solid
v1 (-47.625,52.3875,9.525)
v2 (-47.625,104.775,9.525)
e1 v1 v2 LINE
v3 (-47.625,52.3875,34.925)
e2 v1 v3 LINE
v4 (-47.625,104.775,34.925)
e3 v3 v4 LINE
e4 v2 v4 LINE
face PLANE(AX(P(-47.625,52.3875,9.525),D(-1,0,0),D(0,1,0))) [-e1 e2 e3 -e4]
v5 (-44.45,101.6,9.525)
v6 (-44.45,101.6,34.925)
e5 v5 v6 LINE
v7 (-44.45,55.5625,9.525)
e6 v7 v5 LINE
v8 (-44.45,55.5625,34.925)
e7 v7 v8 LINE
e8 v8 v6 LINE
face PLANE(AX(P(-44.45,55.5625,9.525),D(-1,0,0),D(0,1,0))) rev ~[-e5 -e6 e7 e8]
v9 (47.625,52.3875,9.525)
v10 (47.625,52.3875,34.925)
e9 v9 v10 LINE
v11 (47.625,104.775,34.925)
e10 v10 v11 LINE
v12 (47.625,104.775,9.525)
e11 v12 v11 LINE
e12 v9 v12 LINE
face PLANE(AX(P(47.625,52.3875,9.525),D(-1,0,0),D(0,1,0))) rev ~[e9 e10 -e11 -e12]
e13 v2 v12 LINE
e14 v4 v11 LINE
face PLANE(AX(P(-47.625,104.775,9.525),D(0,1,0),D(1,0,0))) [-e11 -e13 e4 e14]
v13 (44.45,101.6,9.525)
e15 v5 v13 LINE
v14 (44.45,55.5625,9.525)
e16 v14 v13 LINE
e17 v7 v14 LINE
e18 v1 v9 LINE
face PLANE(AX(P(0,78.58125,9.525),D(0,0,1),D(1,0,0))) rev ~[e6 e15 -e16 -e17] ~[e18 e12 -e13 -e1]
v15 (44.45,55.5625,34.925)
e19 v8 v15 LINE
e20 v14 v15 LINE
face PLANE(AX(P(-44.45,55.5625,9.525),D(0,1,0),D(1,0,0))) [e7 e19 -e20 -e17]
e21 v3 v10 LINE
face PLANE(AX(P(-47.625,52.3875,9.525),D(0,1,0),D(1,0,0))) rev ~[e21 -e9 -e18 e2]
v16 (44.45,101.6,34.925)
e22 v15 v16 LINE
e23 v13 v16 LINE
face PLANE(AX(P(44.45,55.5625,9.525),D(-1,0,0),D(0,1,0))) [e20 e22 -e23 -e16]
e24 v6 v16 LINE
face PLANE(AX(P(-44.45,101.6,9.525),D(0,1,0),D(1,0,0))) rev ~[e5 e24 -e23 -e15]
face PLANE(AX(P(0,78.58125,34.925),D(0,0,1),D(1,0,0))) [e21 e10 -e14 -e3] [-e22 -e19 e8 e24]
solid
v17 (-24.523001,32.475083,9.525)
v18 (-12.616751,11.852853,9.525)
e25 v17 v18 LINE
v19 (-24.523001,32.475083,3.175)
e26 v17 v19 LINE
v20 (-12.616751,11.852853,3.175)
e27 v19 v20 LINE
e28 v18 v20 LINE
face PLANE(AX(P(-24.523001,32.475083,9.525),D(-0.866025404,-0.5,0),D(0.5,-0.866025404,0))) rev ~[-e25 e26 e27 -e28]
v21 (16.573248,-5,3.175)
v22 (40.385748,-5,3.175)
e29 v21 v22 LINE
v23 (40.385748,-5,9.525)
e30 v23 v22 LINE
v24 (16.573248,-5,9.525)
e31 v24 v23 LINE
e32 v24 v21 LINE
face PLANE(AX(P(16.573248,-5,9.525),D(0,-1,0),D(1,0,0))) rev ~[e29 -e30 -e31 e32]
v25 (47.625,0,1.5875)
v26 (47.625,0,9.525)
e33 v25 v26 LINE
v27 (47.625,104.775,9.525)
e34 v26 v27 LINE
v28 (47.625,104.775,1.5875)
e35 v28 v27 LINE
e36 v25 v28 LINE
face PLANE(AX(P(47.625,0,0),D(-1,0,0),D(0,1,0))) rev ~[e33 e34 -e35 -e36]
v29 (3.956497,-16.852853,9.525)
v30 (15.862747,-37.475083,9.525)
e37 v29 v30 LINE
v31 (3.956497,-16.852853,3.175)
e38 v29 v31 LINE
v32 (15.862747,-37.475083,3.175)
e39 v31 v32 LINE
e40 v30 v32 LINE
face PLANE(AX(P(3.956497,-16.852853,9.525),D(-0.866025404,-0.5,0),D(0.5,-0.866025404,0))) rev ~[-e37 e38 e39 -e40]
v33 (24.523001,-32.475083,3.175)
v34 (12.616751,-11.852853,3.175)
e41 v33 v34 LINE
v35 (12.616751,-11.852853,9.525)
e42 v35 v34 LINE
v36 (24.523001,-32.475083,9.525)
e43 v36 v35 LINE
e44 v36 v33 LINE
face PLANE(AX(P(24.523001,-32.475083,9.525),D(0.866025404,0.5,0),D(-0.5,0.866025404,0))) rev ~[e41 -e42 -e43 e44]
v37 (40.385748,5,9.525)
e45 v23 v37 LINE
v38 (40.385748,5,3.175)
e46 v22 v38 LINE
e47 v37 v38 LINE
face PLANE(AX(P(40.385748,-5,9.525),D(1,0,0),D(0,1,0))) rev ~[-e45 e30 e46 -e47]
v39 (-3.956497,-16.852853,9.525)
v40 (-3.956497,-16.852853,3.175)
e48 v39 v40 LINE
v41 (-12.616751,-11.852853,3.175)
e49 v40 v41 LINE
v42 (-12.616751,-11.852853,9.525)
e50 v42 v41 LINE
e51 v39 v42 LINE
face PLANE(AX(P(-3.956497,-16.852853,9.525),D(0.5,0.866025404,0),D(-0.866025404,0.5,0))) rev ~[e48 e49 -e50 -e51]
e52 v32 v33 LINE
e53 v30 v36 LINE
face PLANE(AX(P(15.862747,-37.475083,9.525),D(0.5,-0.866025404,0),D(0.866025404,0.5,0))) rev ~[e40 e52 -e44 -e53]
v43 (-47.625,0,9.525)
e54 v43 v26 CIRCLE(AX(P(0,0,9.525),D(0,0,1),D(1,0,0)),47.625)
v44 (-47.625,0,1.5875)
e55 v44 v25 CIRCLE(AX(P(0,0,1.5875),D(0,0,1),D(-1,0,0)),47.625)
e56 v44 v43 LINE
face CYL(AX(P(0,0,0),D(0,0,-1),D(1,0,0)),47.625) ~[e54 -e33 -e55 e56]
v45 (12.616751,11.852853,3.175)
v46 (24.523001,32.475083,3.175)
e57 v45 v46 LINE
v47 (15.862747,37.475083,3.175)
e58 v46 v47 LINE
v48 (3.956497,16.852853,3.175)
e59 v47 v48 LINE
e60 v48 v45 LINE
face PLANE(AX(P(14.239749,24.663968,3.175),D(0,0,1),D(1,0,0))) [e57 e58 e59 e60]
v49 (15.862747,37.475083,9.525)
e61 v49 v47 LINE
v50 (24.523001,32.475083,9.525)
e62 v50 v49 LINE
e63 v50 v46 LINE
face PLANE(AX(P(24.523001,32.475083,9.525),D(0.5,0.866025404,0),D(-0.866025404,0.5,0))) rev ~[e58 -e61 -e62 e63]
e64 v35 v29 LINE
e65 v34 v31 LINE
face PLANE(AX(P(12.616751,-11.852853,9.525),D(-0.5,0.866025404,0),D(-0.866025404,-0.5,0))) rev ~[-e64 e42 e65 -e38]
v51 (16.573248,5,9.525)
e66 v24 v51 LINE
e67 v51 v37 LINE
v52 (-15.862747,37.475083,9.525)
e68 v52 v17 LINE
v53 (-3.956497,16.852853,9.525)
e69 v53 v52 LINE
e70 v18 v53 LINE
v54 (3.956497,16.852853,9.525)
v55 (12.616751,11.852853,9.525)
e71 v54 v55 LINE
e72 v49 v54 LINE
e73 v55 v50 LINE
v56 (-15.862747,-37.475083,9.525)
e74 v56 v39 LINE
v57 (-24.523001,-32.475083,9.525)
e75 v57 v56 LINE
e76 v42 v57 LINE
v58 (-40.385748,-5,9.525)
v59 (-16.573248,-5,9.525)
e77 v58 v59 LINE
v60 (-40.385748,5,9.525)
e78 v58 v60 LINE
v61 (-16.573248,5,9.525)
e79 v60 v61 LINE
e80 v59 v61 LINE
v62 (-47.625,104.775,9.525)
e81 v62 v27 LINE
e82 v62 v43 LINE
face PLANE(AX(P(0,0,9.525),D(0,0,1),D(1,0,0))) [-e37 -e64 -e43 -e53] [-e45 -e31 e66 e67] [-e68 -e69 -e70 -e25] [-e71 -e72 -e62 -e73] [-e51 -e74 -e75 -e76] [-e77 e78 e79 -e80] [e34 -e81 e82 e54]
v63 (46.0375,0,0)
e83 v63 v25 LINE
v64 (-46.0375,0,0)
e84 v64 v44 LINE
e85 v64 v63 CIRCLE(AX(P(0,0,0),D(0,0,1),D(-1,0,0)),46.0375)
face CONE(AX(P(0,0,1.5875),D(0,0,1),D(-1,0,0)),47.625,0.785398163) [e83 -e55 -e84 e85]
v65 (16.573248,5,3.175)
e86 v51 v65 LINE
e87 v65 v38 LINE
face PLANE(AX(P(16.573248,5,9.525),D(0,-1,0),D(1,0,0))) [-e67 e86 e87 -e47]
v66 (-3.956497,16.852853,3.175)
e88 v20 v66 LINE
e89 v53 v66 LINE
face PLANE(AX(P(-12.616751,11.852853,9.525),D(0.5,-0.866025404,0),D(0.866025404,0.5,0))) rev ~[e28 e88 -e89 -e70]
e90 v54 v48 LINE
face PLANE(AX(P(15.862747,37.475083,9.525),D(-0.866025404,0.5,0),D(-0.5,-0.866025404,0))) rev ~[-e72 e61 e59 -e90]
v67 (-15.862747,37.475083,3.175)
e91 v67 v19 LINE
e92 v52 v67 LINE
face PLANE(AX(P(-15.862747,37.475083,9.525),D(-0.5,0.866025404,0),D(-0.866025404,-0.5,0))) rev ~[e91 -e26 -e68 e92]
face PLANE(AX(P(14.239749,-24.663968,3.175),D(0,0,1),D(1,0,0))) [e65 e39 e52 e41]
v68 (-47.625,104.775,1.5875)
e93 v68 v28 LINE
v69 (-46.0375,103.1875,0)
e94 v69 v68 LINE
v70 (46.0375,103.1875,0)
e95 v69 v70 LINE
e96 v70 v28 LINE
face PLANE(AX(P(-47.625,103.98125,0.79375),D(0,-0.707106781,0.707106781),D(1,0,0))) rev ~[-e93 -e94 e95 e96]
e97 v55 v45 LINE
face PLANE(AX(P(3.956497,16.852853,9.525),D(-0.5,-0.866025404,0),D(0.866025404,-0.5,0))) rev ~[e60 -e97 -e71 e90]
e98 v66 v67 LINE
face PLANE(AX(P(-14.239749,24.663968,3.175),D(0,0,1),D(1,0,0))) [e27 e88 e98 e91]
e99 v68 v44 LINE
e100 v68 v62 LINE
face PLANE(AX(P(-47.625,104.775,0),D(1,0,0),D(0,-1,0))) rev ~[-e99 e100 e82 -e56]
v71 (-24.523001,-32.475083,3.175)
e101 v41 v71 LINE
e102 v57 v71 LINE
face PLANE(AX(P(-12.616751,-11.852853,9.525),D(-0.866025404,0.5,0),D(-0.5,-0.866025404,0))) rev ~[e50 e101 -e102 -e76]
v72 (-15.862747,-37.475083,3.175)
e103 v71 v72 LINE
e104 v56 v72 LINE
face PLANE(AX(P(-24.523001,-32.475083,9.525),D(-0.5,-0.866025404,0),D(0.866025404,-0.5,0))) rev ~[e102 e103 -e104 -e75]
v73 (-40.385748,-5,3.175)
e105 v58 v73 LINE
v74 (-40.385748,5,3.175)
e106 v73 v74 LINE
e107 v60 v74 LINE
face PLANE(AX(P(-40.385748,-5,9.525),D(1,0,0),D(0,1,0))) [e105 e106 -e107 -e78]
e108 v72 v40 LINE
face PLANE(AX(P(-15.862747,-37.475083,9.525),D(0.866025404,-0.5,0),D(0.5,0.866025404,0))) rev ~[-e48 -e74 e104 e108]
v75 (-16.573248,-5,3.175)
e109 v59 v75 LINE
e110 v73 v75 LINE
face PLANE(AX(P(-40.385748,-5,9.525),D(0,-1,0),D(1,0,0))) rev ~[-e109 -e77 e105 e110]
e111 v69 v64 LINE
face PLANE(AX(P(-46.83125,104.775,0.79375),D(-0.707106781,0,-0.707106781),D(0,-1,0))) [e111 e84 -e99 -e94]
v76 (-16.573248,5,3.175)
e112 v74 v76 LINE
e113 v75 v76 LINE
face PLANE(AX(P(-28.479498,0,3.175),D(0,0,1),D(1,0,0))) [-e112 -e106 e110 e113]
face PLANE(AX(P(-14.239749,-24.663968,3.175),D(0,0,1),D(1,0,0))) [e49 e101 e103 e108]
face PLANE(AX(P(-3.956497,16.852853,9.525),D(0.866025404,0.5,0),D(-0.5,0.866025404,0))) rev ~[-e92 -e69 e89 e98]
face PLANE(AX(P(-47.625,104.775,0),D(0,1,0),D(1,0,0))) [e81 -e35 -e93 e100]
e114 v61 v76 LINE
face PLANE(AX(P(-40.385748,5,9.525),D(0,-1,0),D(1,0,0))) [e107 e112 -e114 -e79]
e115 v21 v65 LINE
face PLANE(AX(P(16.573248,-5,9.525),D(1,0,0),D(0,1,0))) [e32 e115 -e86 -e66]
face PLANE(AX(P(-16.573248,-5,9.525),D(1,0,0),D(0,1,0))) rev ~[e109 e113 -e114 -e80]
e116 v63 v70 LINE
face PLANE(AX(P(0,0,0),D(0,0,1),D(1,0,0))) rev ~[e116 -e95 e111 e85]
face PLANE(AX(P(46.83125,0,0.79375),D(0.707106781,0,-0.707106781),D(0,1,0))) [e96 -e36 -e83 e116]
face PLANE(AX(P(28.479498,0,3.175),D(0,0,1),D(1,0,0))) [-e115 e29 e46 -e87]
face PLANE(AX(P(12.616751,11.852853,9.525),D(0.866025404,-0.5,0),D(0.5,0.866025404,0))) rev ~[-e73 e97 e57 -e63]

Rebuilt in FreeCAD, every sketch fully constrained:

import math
import FreeCAD as App
import Part
import Sketcher
from FreeCAD import Vector
Q = App.Units.Quantity


def edges_at(feature, points):
    """Names of the edges that pass closest to the given points."""
    edges = feature.Shape.Edges
    near = lambda p: min(range(len(edges)), key=lambda i: edges[i].distToShape(Part.Vertex(*p))[0])
    return sorted({f"Edge{near(p) + 1}" for p in points})


def add_polygon(sketch, points):
    """Adds a closed chain of lines whose ends are joined by coincident constraints."""
    first, n = sketch.GeometryCount, len(points)
    for a, b in zip(points, points[1:] + points[:1]):
        sketch.addGeometry(Part.LineSegment(App.Vector(*a, 0), App.Vector(*b, 0)), False)
    for i in range(n):
        sketch.addConstraint(Sketcher.Constraint("Coincident", first + i, 2, first + (i + 1) % n, 1))

doc = App.newDocument("Part")
body = doc.addObject("PartDesign::Body", "Body")

# Sketch on XY plane
sketch1 = body.newObject("Sketcher::SketchObject", "Sketch")
sketch1.AttachmentSupport = (doc.getObject("XY_Plane"), [""])
sketch1.MapMode = "FlatFace"
sketch1.addGeometry([
    Part.ArcOfCircle(Part.Circle(Vector(0, 0, 0), Vector(0, 0, 1), 47.625), math.radians(180), math.radians(360)),  # 0
    Part.LineSegment(Vector(47.625, 0, 0), Vector(47.625, 104.775, 0)),  # 1
    Part.LineSegment(Vector(47.625, 104.775, 0), Vector(-47.625, 104.775, 0)),  # 2
    Part.LineSegment(Vector(-47.625, 104.775, 0), Vector(-47.625, 0, 0)),  # 3
    Part.Circle(Vector(0, 0, 0), Vector(0, 0, 1), 12.7),  # 4
], False)
sketch1.addConstraint([
    Sketcher.Constraint("Tangent", 0, 2, 1, 1),
    Sketcher.Constraint("Coincident", 1, 2, 2, 1),
    Sketcher.Constraint("Coincident", 2, 2, 3, 1),
    Sketcher.Constraint("Tangent", 3, 2, 0, 1),
    Sketcher.Constraint("Vertical", 1),
    Sketcher.Constraint("Horizontal", 2),
    Sketcher.Constraint("Vertical", 3),
    Sketcher.Constraint("Coincident", 0, 3, -1, 1),
    Sketcher.Constraint("Coincident", 4, 3, -1, 1),
    Sketcher.Constraint("Diameter", 4, Q("1 in")),
    Sketcher.Constraint("Radius", 0, Q("1.875 in")),
    Sketcher.Constraint("DistanceY", 1, 1, 1, 2, Q("4.125 in")),
])
pad1 = body.newObject("PartDesign::Pad", "Pad")
pad1.Profile = sketch1
pad1.Length = Q("0.375 in")

# Sketch on XY plane
sketch2 = body.newObject("Sketcher::SketchObject", "Sketch001")
sketch2.AttachmentSupport = (doc.getObject("XY_Plane"), [""])
sketch2.MapMode = "FlatFace"
sketch2.AttachmentOffset = App.Placement(Vector(0, 0, 0.375 * 25.4), App.Rotation())
add_polygon(sketch2, [(-40.385748, 5), (-40.385748, -5), (-16.573248, -5), (-16.573248, 5)])  # lines 0-3
add_polygon(sketch2, [(-12.616751, 11.852853), (-3.956497, 16.852853), (-15.862747, 37.475083), (-24.523001, 32.475083)])  # lines 4-7
add_polygon(sketch2, [(3.956497, 16.852853), (12.616751, 11.852853), (24.523001, 32.475083), (15.862747, 37.475083)])  # lines 8-11
add_polygon(sketch2, [(16.573248, 5), (16.573248, -5), (40.385748, -5), (40.385748, 5)])  # lines 12-15
add_polygon(sketch2, [(12.616751, -11.852853), (3.956497, -16.852853), (15.862747, -37.475083), (24.523001, -32.475083)])  # lines 16-19
add_polygon(sketch2, [(-3.956497, -16.852853), (-12.616751, -11.852853), (-24.523001, -32.475083), (-15.862747, -37.475083)])  # lines 20-23
sketch2.addConstraint([
    Sketcher.Constraint("Vertical", 0),
    Sketcher.Constraint("Horizontal", 1),
    Sketcher.Constraint("Vertical", 2),
    Sketcher.Constraint("Horizontal", 3),
    Sketcher.Constraint("Vertical", 12),
    Sketcher.Constraint("Horizontal", 13),
    Sketcher.Constraint("Vertical", 14),
    Sketcher.Constraint("Horizontal", 15),
    Sketcher.Constraint("Symmetric", 2, 2, 12, 2, -1, 1),
    Sketcher.Constraint("Symmetric", 0, 2, 14, 2, -1, 1),
    Sketcher.Constraint("Symmetric", 4, 2, 16, 2, -1, 1),
    Sketcher.Constraint("Symmetric", 5, 2, 17, 2, -1, 1),
    Sketcher.Constraint("Symmetric", 6, 2, 18, 2, -1, 1),
    Sketcher.Constraint("Symmetric", 7, 2, 19, 2, -1, 1),
    Sketcher.Constraint("Symmetric", 8, 2, 20, 2, -1, 1),
    Sketcher.Constraint("Symmetric", 9, 2, 21, 2, -1, 1),
    Sketcher.Constraint("Symmetric", 10, 2, 22, 2, -1, 1),
    Sketcher.Constraint("Symmetric", 11, 2, 23, 2, -1, 1),
    Sketcher.Constraint("Symmetric", 7, 2, 8, 2, -2),
    Sketcher.Constraint("Symmetric", 6, 2, 9, 2, -2),
    Sketcher.Constraint("Symmetric", 5, 2, 10, 2, -2),
    Sketcher.Constraint("Symmetric", 4, 2, 11, 2, -2),
    Sketcher.Constraint("Perpendicular", 4, 5),
    Sketcher.Constraint("Perpendicular", 5, 6),
    Sketcher.Constraint("Perpendicular", 6, 7),
    Sketcher.Constraint("Horizontal", 1, 2, 12, 2),
    Sketcher.Constraint("Angle", 4, Q("30 deg")),
    Sketcher.Constraint("DistanceX", 1, 1, 1, 2, Q("0.9375 in")),
    Sketcher.Constraint("Distance", 5, Q("0.9375 in")),
    Sketcher.Constraint("DistanceY", 0, 2, 0, 1, 10.0),
    Sketcher.Constraint("Distance", 4, 10.0),
    Sketcher.Constraint("DistanceX", 6, 2, -1, 1, 24.523001),
    Sketcher.Constraint("DistanceX", 2, 2, 5, 2, 0.710501),
    Sketcher.Constraint("DistanceY", -1, 1, 4, 2, 16.852853),
])
pocket1 = body.newObject("PartDesign::Pocket", "Pocket")
pocket1.Profile = sketch2
pocket1.Length = Q("0.25 in")

# Sketch on XY plane
sketch3 = body.newObject("Sketcher::SketchObject", "Sketch002")
sketch3.AttachmentSupport = (doc.getObject("XY_Plane"), [""])
sketch3.MapMode = "FlatFace"
sketch3.addGeometry(Part.Circle(Vector(0, 0, 0), Vector(0, 0, 1), 12.7), False)
sketch3.addConstraint([
    Sketcher.Constraint("Coincident", 0, 3, -1, 1),
    Sketcher.Constraint("Diameter", 0, Q("1 in")),
])
pad2 = body.newObject("PartDesign::Pad", "Pad001")
pad2.Profile = sketch3
pad2.Length = Q("0.375 in")
doc.recompute()

chamfer = body.newObject("PartDesign::Chamfer", "Chamfer")
chamfer.Base = (pad2, edges_at(pad2, [(0, -47.625, 0), (0, 104.775, 0)]))
chamfer.Size = Q("0.0625 in")
body2 = doc.addObject("PartDesign::Body", "Body001")

# Sketch on XY plane
sketch4 = body2.newObject("Sketcher::SketchObject", "Sketch003")
sketch4.AttachmentSupport = (doc.getObject("XY_Plane001"), [""])
sketch4.MapMode = "FlatFace"
sketch4.AttachmentOffset = App.Placement(Vector(0, 0, 0.375 * 25.4), App.Rotation())
add_polygon(sketch4, [(-47.625, 104.775), (-47.625, 52.3875), (47.625, 52.3875), (47.625, 104.775)])  # lines 0-3
add_polygon(sketch4, [(44.45, 55.5625), (-44.45, 55.5625), (-44.45, 101.6), (44.45, 101.6)])  # lines 4-7
sketch4.addConstraint([
    Sketcher.Constraint("Vertical", 0),
    Sketcher.Constraint("Horizontal", 1),
    Sketcher.Constraint("Vertical", 2),
    Sketcher.Constraint("Horizontal", 3),
    Sketcher.Constraint("Horizontal", 4),
    Sketcher.Constraint("Vertical", 5),
    Sketcher.Constraint("Horizontal", 6),
    Sketcher.Constraint("Vertical", 7),
    Sketcher.Constraint("DistanceX", 4, 2, 4, 1, Q("3.5 in")),
    Sketcher.Constraint("DistanceY", -1, 1, 5, 2, Q("4 in")),
    Sketcher.Constraint("DistanceX", 1, 1, 1, 2, Q("3.75 in")),
    Sketcher.Constraint("DistanceY", 0, 2, 0, 1, Q("2.0625 in")),
    Sketcher.Constraint("DistanceY", 5, 1, 5, 2, Q("1.8125 in")),
    Sketcher.Constraint("DistanceX", 4, 2, -1, 1, Q("1.75 in")),
    Sketcher.Constraint("DistanceX", 0, 2, -1, 1, Q("1.875 in")),
    Sketcher.Constraint("DistanceY", -1, 1, 0, 2, Q("2.0625 in")),
])
pad3 = body2.newObject("PartDesign::Pad", "Pad002")
pad3.Profile = sketch4
pad3.Length = Q("1 in")

doc.recompute()
